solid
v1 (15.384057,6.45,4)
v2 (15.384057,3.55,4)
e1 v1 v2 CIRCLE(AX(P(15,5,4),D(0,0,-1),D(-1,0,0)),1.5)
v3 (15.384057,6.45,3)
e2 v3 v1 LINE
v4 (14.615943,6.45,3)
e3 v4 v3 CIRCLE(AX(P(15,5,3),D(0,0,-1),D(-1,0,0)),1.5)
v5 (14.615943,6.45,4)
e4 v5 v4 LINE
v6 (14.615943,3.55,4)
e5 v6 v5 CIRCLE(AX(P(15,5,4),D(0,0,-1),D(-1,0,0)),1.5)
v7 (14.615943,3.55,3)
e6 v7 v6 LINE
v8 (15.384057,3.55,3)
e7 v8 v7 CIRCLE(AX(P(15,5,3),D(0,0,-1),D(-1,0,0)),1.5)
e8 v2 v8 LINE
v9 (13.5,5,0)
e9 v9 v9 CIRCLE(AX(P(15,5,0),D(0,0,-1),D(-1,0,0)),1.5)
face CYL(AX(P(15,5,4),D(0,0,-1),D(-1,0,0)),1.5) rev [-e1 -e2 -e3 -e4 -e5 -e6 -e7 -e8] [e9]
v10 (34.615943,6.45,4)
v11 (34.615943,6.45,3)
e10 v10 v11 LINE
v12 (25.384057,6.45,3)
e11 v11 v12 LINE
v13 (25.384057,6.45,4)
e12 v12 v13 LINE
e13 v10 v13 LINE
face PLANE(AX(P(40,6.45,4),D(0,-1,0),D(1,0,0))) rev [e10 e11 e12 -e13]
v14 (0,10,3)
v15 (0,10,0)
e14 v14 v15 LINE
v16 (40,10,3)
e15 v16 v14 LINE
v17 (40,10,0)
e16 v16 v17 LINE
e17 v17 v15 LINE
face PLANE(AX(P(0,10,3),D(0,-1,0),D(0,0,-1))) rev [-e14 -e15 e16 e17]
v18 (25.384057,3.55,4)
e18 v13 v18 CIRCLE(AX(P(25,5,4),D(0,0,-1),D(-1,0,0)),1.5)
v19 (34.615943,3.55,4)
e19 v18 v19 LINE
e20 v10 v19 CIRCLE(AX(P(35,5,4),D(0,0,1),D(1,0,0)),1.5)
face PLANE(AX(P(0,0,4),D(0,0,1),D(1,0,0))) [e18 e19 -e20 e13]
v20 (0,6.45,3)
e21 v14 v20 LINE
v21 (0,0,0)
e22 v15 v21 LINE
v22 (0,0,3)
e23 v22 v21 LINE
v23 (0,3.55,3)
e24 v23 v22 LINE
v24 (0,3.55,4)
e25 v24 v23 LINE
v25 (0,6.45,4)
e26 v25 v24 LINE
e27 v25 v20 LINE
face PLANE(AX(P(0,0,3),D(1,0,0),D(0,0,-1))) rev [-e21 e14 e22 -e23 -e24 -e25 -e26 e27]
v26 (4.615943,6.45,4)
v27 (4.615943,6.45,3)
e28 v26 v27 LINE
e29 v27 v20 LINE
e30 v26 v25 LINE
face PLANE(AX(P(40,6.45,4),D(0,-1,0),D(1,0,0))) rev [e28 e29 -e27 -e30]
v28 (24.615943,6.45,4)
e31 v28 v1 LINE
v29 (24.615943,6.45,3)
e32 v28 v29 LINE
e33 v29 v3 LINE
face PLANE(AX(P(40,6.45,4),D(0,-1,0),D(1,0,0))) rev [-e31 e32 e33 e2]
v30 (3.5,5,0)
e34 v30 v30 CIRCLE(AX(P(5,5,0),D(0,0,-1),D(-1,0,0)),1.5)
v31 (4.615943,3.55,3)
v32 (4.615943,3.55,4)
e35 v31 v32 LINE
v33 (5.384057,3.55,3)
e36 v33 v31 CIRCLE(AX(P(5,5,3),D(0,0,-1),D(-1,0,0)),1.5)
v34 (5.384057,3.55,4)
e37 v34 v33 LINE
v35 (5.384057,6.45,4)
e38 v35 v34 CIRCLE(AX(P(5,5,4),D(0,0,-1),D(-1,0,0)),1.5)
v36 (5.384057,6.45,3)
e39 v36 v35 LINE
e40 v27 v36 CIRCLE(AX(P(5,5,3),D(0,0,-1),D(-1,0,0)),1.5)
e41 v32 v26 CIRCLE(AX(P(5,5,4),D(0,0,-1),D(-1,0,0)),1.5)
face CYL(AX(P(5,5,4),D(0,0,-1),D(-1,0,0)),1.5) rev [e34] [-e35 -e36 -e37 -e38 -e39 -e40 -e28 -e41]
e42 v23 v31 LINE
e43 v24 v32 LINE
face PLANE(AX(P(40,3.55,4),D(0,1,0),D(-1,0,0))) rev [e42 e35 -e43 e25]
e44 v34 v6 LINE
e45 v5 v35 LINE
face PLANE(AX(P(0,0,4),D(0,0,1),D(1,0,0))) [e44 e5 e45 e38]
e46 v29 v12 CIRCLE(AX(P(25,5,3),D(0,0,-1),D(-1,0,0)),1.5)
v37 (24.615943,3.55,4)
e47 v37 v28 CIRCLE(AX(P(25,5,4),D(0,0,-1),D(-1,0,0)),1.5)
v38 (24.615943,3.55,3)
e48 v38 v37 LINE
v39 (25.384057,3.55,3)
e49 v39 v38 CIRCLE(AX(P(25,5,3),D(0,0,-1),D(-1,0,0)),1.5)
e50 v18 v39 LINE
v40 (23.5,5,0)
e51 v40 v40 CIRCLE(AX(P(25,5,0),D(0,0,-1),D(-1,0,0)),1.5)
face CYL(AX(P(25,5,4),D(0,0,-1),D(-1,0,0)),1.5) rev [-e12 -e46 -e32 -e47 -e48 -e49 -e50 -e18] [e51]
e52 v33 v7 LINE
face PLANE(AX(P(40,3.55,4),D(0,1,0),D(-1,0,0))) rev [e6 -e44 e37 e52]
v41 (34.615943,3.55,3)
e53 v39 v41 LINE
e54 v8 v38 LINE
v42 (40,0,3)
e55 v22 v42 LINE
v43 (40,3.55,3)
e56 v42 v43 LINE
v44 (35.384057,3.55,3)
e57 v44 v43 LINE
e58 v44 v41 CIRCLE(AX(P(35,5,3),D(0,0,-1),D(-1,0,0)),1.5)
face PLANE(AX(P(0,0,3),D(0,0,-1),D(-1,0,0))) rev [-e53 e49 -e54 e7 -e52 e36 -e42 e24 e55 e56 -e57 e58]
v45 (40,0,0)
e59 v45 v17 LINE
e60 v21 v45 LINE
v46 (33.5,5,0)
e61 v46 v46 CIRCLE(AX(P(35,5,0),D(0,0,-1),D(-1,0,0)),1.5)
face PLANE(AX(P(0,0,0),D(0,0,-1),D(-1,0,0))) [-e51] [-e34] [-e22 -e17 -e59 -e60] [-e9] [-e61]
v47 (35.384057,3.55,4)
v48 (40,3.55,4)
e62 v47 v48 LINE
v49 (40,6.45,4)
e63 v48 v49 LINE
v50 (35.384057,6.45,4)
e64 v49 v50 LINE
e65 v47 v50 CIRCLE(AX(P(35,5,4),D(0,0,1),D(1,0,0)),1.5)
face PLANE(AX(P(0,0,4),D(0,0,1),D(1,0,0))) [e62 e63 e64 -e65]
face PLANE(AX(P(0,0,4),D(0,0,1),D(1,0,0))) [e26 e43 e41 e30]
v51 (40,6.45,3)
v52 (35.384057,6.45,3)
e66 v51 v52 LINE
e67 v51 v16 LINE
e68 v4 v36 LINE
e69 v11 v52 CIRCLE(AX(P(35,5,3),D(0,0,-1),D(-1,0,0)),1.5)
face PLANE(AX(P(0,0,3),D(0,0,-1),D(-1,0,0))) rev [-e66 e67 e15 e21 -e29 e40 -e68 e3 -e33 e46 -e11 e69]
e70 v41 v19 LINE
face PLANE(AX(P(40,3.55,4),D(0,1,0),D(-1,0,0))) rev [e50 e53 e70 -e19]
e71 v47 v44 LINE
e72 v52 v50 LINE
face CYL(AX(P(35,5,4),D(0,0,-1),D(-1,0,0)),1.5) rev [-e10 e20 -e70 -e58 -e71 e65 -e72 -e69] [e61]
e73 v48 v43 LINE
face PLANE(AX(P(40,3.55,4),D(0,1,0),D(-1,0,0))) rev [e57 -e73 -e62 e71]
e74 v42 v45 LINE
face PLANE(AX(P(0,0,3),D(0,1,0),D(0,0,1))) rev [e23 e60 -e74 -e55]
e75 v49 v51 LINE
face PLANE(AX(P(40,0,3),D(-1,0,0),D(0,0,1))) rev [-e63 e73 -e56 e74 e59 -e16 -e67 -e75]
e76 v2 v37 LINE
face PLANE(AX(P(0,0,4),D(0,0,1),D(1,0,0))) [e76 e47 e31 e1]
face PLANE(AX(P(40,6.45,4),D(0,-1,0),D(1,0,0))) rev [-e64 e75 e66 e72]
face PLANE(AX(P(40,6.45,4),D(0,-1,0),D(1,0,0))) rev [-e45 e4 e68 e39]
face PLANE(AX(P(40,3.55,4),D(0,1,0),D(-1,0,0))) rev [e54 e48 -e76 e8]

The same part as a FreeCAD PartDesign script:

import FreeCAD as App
import Part
import Sketcher
from FreeCAD import Vector


def add_polygon(sketch, points):
    """Adds a closed chain of lines whose ends are joined by coincident constraints."""
    first, n = sketch.GeometryCount, len(points)
    for a, b in zip(points, points[1:] + points[:1]):
        sketch.addGeometry(Part.LineSegment(App.Vector(*a, 0), App.Vector(*b, 0)), False)
    for i in range(n):
        sketch.addConstraint(Sketcher.Constraint("Coincident", first + i, 2, first + (i + 1) % n, 1))

doc = App.newDocument("Part")
params = doc.addObject("Spreadsheet::Sheet", "Params")
for row, (alias, value) in enumerate([
    ("sketch1_width", "40 mm"),
    ("sketch1_height", "10 mm"),
    ("pad1_length", "3 mm"),
    ("sketch2_width", "40 mm"),
    ("sketch2_height", "2.9 mm"),
    ("pad2_length", "1 mm"),
    ("sketch3_diameter", "3 mm"),
    ("linearpattern_pitch", "10 mm"),
], start=1):
    params.set(f"A{row}", alias)
    params.set(f"B{row}", "=" + value)
    params.setAlias(f"B{row}", alias)

body = doc.addObject("PartDesign::Body", "Body")

# Sketch on XY plane
sketch1 = doc.addObject("Sketcher::SketchObject", "Sketch")
body.addObject(sketch1)
sketch1.AttachmentSupport = (doc.XY_Plane, [""])
sketch1.MapMode = "FlatFace"
add_polygon(sketch1, [(0, 10), (0, 0), (40, 0), (40, 10)])  # lines 0-3
sketch1.addConstraint([
    Sketcher.Constraint("Vertical", 0),
    Sketcher.Constraint("Horizontal", 1),
    Sketcher.Constraint("Vertical", 2),
    Sketcher.Constraint("Horizontal", 3),
    Sketcher.Constraint("Coincident", 0, 2, -1, 1),
    Sketcher.Constraint("DistanceX", 1, 1, 1, 2, 40.0),
    Sketcher.Constraint("DistanceY", 0, 2, 0, 1, 10.0),
])
sketch1.setExpression("Constraints[9]", "Params.sketch1_width")
sketch1.setExpression("Constraints[10]", "Params.sketch1_height")
pad1 = doc.addObject("PartDesign::Pad", "Pad")
body.addObject(pad1)
pad1.Profile = sketch1
pad1.setExpression("Length", "Params.pad1_length")

# Sketch on XY plane
sketch2 = doc.addObject("Sketcher::SketchObject", "Sketch001")
body.addObject(sketch2)
sketch2.AttachmentSupport = (doc.XY_Plane, [""])
sketch2.MapMode = "FlatFace"
sketch2.AttachmentOffset = App.Placement(Vector(0, 0, 3), App.Rotation())
add_polygon(sketch2, [(0, 6.5), (0, 3.5), (40, 3.5), (40, 6.5)])  # lines 0-3
sketch2.addConstraint([
    Sketcher.Constraint("Vertical", 0),
    Sketcher.Constraint("Horizontal", 1),
    Sketcher.Constraint("Vertical", 2),
    Sketcher.Constraint("Horizontal", 3),
    Sketcher.Constraint("PointOnObject", 0, 2, -2),
    Sketcher.Constraint("DistanceX", 1, 1, 1, 2, 40.0),
    Sketcher.Constraint("DistanceY", 0, 2, 0, 1, 2.9),
    Sketcher.Constraint("DistanceY", -1, 1, 0, 2, 3.55),
])
sketch2.setExpression("Constraints[9]", "Params.sketch2_width")
sketch2.setExpression("Constraints[10]", "Params.sketch2_height")
pad2 = doc.addObject("PartDesign::Pad", "Pad001")
body.addObject(pad2)
pad2.Profile = sketch2
pad2.setExpression("Length", "Params.pad2_length")

# Sketch on XY plane
sketch3 = doc.addObject("Sketcher::SketchObject", "Sketch002")
body.addObject(sketch3)
sketch3.AttachmentSupport = (doc.XY_Plane, [""])
sketch3.MapMode = "FlatFace"
sketch3.addGeometry(Part.Circle(Vector(35, 5, 0), Vector(0, 0, 1), 1.5), False)
sketch3.addConstraint([
    Sketcher.Constraint("Diameter", 0, 3.0),
    Sketcher.Constraint("DistanceX", -1, 1, 0, 3, 35.0),
    Sketcher.Constraint("DistanceY", -1, 1, 0, 3, 5.0),
])
sketch3.setExpression("Constraints[0]", "Params.sketch3_diameter")
pocket1 = doc.addObject("PartDesign::Pocket", "Pocket")
body.addObject(pocket1)
pocket1.Profile = sketch3
pocket1.Type = "ThroughAll"
pocket1.Reversed = True
doc.recompute()

linearpattern = doc.addObject("PartDesign::LinearPattern", "LinearPattern")
body.addObject(linearpattern)
linearpattern.Originals = [pocket1]
linearpattern.Direction = (doc.X_Axis, [""])
linearpattern.Mode = "offset"
linearpattern.setExpression("Offset", "Params.linearpattern_pitch")
linearpattern.Occurrences = 4
linearpattern.Reversed = True
body.Tip = linearpattern

doc.recompute()
